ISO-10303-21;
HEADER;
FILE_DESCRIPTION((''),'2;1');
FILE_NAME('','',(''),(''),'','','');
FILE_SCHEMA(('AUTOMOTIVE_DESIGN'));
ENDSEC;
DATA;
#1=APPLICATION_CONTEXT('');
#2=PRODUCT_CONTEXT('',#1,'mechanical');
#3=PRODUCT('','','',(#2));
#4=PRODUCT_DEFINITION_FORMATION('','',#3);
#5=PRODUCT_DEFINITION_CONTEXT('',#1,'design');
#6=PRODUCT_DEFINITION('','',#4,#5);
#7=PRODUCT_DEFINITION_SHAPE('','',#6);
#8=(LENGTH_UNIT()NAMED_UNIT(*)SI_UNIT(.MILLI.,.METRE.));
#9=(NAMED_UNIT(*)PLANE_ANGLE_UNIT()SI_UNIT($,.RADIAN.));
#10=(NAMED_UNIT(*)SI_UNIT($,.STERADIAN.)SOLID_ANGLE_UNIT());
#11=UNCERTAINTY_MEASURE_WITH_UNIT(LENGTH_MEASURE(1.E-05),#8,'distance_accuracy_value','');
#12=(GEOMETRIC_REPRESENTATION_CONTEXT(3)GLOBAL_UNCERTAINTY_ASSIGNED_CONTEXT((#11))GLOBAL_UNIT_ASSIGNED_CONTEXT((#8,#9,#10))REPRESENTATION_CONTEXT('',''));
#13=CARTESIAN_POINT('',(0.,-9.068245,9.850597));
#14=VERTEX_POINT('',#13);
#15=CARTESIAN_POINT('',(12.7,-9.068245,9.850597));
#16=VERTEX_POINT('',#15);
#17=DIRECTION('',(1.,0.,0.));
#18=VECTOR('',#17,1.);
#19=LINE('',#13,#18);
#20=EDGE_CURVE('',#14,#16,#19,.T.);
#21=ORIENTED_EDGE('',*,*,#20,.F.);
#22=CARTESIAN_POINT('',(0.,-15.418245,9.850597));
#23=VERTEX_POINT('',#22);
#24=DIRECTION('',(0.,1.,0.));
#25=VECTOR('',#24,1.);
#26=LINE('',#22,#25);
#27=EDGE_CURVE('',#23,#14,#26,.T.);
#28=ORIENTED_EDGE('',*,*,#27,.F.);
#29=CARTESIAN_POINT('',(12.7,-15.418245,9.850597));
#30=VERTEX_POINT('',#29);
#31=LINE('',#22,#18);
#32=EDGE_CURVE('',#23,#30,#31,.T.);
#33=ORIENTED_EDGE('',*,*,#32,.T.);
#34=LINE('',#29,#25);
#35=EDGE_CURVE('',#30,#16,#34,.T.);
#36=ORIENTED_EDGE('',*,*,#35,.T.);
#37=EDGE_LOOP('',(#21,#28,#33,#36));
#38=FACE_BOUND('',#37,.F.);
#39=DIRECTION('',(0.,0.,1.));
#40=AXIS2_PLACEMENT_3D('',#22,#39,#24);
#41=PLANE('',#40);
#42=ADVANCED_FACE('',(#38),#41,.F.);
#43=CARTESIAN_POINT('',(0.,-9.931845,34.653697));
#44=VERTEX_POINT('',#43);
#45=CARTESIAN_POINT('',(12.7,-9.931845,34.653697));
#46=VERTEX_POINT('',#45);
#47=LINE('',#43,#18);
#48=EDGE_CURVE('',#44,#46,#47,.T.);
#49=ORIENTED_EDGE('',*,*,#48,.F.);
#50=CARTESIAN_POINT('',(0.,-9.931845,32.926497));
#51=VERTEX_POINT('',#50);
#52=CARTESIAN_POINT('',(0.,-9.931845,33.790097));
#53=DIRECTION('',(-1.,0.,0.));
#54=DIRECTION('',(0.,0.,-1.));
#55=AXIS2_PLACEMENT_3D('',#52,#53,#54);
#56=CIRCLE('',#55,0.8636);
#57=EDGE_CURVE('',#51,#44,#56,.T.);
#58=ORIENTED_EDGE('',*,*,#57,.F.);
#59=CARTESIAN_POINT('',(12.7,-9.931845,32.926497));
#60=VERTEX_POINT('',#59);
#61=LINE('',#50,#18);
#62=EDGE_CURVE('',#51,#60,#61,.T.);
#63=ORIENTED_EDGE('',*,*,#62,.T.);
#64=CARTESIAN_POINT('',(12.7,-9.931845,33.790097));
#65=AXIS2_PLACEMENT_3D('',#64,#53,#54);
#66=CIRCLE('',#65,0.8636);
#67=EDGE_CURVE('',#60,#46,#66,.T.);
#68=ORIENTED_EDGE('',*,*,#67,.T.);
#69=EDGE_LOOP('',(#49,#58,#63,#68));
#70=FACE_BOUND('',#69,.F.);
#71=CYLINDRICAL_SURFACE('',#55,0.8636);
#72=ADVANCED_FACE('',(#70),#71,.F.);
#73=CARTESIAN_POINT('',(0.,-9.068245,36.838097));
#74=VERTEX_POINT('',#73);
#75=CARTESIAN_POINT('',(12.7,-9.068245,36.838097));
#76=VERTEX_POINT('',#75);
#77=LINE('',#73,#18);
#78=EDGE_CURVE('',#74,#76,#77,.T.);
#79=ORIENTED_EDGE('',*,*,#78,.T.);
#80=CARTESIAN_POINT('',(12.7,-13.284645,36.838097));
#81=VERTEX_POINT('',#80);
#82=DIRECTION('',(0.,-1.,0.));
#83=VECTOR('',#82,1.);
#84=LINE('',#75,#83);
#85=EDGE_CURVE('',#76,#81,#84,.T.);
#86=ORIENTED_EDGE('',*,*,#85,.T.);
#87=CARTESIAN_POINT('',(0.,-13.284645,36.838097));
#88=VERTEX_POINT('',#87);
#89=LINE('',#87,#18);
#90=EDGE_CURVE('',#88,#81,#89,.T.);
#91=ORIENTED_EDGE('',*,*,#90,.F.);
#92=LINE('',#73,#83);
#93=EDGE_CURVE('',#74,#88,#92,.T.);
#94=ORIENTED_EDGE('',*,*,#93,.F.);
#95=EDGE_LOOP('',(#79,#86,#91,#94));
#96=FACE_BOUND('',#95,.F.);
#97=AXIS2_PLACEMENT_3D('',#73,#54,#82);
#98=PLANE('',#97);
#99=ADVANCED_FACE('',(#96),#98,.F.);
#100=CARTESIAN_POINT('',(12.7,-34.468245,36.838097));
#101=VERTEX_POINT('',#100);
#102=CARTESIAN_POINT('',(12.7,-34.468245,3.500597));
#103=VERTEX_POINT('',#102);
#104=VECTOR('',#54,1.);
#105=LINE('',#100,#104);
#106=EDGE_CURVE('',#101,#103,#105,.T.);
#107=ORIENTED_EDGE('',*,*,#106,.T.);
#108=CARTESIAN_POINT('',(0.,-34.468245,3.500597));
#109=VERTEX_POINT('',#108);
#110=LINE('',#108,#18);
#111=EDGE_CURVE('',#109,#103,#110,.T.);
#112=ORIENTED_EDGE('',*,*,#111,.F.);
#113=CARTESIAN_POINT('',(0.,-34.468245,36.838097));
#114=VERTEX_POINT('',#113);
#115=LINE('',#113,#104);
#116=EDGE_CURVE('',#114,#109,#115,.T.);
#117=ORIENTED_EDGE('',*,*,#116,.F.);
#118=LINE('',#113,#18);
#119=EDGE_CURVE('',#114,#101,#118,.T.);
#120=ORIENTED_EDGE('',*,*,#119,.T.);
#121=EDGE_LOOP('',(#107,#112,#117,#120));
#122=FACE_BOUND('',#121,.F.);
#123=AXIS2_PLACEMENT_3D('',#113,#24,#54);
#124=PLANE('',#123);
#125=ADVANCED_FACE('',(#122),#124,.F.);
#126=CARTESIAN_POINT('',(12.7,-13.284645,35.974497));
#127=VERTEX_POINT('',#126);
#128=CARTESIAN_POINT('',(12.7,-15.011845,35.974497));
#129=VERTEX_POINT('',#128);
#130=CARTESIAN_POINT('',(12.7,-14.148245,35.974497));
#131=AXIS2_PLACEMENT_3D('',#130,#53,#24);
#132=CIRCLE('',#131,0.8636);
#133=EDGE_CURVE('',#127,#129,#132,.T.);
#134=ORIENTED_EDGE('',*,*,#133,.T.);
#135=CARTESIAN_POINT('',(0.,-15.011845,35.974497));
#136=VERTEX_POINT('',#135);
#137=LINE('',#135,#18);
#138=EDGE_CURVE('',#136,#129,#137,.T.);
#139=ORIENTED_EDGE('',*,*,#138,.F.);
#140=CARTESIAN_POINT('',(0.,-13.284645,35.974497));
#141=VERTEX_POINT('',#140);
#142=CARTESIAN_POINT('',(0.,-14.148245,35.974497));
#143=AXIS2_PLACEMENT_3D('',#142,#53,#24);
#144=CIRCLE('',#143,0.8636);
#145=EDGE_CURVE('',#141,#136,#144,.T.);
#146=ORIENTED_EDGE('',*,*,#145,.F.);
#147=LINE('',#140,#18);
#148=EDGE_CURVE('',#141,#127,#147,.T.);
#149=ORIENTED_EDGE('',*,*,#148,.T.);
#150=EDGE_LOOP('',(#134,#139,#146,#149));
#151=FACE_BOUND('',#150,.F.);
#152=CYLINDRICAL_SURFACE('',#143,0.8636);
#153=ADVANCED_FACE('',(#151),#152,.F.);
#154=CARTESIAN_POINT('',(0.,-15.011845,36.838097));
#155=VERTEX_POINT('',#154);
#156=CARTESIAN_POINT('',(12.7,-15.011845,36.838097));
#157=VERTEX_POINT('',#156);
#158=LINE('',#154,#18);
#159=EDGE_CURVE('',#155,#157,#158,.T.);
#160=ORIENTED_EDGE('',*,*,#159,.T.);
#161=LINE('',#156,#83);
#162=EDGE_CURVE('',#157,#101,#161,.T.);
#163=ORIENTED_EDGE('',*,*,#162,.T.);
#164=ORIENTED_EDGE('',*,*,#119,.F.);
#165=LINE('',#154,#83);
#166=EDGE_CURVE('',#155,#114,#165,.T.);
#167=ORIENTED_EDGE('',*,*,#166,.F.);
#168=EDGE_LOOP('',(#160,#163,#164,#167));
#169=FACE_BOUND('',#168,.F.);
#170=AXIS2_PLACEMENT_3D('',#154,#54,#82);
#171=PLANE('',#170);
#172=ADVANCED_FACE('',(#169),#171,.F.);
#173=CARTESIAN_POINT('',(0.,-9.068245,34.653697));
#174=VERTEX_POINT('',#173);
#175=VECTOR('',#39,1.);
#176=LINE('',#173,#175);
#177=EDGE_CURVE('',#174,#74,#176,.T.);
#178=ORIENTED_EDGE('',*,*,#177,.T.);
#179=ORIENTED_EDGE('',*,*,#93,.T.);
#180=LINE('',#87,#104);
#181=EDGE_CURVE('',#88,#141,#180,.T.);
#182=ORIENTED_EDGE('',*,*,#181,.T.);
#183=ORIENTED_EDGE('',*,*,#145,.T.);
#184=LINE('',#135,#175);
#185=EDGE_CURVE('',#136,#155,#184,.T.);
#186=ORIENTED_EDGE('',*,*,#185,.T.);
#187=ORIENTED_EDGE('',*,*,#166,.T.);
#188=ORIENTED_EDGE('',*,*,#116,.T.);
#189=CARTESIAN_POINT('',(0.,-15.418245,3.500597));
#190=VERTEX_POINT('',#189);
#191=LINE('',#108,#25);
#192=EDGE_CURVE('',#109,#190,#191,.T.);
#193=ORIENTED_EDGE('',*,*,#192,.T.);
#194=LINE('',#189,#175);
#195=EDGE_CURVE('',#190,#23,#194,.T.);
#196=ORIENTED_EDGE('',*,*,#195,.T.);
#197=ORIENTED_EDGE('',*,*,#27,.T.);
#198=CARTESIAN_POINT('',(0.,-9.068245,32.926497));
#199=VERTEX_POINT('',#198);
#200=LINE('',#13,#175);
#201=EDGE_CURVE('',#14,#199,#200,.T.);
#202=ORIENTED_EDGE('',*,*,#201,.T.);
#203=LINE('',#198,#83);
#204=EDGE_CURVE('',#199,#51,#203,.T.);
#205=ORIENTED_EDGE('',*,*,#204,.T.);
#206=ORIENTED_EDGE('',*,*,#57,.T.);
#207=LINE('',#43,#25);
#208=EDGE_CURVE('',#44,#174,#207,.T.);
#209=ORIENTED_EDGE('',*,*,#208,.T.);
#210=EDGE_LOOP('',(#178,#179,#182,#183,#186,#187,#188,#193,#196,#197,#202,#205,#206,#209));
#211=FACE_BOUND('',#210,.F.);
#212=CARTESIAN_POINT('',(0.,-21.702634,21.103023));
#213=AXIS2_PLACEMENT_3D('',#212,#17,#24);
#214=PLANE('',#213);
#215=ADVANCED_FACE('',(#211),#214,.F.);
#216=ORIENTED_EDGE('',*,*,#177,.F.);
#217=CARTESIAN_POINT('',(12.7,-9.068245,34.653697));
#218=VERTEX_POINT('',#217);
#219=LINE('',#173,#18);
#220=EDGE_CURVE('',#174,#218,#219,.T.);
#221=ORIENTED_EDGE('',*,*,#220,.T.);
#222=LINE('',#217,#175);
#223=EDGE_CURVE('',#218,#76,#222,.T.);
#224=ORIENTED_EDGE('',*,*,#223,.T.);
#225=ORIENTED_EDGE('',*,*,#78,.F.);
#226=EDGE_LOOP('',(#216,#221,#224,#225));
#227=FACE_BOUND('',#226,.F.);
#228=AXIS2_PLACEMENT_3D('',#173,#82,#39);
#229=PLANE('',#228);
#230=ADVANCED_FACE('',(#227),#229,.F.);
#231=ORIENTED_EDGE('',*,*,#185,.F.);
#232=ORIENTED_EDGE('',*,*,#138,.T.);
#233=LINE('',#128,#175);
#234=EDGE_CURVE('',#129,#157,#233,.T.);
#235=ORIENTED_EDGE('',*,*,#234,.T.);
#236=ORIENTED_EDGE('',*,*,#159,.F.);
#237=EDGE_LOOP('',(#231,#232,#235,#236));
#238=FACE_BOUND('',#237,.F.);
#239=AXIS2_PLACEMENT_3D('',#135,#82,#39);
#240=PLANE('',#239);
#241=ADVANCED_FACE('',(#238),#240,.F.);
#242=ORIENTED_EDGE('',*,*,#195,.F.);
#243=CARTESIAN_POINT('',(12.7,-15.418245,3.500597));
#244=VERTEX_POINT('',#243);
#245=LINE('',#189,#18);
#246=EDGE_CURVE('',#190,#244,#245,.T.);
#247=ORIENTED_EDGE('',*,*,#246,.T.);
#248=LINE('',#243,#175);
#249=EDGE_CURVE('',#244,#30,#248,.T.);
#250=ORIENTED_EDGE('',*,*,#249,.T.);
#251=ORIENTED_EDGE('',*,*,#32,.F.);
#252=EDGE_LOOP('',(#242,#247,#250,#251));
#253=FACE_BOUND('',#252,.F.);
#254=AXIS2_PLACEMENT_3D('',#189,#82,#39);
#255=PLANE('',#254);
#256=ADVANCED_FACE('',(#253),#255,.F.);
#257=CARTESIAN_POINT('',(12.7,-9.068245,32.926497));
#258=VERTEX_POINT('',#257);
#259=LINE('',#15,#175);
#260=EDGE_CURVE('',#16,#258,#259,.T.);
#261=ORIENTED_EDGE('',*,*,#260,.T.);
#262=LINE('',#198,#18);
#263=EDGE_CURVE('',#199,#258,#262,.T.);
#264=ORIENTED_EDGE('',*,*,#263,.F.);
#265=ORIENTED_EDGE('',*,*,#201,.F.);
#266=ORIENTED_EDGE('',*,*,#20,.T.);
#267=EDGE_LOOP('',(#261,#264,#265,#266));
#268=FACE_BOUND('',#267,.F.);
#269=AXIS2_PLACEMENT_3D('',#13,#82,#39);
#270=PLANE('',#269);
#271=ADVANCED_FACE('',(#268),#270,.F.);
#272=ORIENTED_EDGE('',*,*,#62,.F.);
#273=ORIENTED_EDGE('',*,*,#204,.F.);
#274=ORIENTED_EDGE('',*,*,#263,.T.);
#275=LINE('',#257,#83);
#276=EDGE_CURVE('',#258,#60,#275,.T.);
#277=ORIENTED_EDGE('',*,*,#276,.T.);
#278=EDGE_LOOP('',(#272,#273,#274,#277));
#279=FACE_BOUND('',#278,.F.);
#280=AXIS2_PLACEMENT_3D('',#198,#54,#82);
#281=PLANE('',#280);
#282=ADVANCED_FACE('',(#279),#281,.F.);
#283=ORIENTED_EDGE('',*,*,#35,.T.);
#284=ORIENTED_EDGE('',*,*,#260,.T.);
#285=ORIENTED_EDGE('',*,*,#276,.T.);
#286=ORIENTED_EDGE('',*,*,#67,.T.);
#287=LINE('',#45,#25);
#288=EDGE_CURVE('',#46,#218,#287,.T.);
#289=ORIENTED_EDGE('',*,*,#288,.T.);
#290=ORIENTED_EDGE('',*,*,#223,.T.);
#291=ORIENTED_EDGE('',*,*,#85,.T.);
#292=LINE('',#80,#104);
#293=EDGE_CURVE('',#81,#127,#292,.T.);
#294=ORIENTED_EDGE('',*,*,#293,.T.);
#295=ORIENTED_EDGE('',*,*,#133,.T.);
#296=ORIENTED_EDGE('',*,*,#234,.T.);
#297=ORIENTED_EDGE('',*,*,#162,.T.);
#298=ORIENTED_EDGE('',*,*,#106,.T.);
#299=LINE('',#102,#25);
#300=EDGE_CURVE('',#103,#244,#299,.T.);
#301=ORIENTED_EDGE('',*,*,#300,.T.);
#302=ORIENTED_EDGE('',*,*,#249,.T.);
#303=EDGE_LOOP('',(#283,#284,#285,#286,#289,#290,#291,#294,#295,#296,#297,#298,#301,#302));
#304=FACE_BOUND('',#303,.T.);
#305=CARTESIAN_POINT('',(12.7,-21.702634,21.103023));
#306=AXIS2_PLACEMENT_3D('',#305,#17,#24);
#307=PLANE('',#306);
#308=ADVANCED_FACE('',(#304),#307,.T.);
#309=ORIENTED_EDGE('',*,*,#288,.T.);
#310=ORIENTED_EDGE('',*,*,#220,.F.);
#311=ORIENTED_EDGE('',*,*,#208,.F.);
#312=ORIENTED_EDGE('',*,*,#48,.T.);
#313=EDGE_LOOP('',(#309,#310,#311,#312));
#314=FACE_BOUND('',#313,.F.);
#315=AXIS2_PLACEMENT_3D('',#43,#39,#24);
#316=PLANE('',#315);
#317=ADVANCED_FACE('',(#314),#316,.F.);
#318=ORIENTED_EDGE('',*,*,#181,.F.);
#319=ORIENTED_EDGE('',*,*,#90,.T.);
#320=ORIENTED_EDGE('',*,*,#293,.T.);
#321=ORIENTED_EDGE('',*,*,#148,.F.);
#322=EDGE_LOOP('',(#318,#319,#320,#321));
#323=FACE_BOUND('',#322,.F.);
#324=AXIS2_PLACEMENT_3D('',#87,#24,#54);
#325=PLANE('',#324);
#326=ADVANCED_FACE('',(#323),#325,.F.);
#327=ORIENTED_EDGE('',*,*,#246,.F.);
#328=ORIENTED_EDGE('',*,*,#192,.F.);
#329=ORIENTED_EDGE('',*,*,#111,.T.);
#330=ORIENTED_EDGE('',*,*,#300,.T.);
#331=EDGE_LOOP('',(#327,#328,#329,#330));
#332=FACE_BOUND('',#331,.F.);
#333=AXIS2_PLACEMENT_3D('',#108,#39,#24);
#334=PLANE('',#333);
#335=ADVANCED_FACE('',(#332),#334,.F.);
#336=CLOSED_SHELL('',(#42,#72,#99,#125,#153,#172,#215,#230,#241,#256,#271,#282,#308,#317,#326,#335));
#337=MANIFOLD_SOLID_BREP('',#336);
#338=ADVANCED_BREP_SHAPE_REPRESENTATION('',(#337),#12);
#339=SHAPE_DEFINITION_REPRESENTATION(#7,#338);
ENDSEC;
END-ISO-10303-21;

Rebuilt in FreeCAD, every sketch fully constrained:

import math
import FreeCAD as App
import Part
import Sketcher

V = App.Vector
Q = App.Units.Quantity

doc = App.newDocument("Part")
body = doc.addObject("PartDesign::Body", "Body")

# Sketch on YZ plane
sketch1 = body.newObject("Sketcher::SketchObject", "Sketch")
sketch1.AttachmentSupport = (doc.getObject("YZ_Plane"), [""])
sketch1.MapMode = "FlatFace"
sketch1.addGeometry([
    Part.LineSegment(V(-15, 36.8, 0), V(-34.5, 36.8, 0)),  # 0
    Part.LineSegment(V(-34.5, 36.8, 0), V(-34.5, 3.5, 0)),  # 1
    Part.LineSegment(V(-34.5, 3.5, 0), V(-15.4, 3.5, 0)),  # 2
    Part.LineSegment(V(-15.4, 3.5, 0), V(-15.4, 9.9, 0)),  # 3
    Part.LineSegment(V(-15.4, 9.9, 0), V(-9.1, 9.9, 0)),  # 4
    Part.LineSegment(V(-9.1, 9.9, 0), V(-9.1, 32.9, 0)),  # 5
    Part.LineSegment(V(-9.1, 32.9, 0), V(-9.9, 32.9, 0)),  # 6
    Part.ArcOfCircle(Part.Circle(V(-9.9, 33.8, 0), V(0, 0, 1), 0.9), math.radians(90), math.radians(270)),  # 7
    Part.LineSegment(V(-9.9, 34.7, 0), V(-9.1, 34.7, 0)),  # 8
    Part.LineSegment(V(-9.1, 34.7, 0), V(-9.1, 36.8, 0)),  # 9
    Part.LineSegment(V(-9.1, 36.8, 0), V(-13.3, 36.8, 0)),  # 10
    Part.LineSegment(V(-13.3, 36.8, 0), V(-13.3, 36, 0)),  # 11
    Part.ArcOfCircle(Part.Circle(V(-14.1, 36, 0), V(0, 0, 1), 0.9), math.radians(180), math.radians(360)),  # 12
    Part.LineSegment(V(-15, 36, 0), V(-15, 36.8, 0)),  # 13
], False)
sketch1.addConstraint([
    Sketcher.Constraint("Coincident", 0, 2, 1, 1),
    Sketcher.Constraint("Coincident", 1, 2, 2, 1),
    Sketcher.Constraint("Coincident", 2, 2, 3, 1),
    Sketcher.Constraint("Coincident", 3, 2, 4, 1),
    Sketcher.Constraint("Coincident", 4, 2, 5, 1),
    Sketcher.Constraint("Coincident", 5, 2, 6, 1),
    Sketcher.Constraint("Tangent", 6, 2, 7, 2),
    Sketcher.Constraint("Tangent", 7, 1, 8, 1),
    Sketcher.Constraint("Coincident", 8, 2, 9, 1),
    Sketcher.Constraint("Coincident", 9, 2, 10, 1),
    Sketcher.Constraint("Coincident", 10, 2, 11, 1),
    Sketcher.Constraint("Tangent", 11, 2, 12, 2),
    Sketcher.Constraint("Tangent", 12, 1, 13, 1),
    Sketcher.Constraint("Coincident", 13, 2, 0, 1),
    Sketcher.Constraint("Horizontal", 0),
    Sketcher.Constraint("Vertical", 1),
    Sketcher.Constraint("Horizontal", 2),
    Sketcher.Constraint("Vertical", 3),
    Sketcher.Constraint("Horizontal", 4),
    Sketcher.Constraint("Vertical", 5),
    Sketcher.Constraint("Horizontal", 6),
    Sketcher.Constraint("Horizontal", 8),
    Sketcher.Constraint("Vertical", 9),
    Sketcher.Constraint("Horizontal", 10),
    Sketcher.Constraint("Vertical", 11),
    Sketcher.Constraint("Vertical", 13),
    Sketcher.Constraint("Equal", 7, 12),
    Sketcher.Constraint("Horizontal", 0, 2, 9, 2),
    Sketcher.Constraint("Vertical", 5, 2, 8, 2),
    Sketcher.Constraint("Equal", 4, 3),
    Sketcher.Constraint("Equal", 8, 11),
    Sketcher.Constraint("Radius", 7, Q("0.034 in")),
    Sketcher.Constraint("DistanceX", 1, 2, 4, 2, Q("1 in")),
    Sketcher.Constraint("DistanceX", 2, 1, 2, 2, Q("0.75 in")),
    Sketcher.Constraint("DistanceX", 0, 2, 12, 3, Q("0.8 in")),
    Sketcher.Constraint("DistanceX", 12, 1, 7, 1, Q("0.2 in")),
    Sketcher.Constraint("DistanceY", 1, 2, 1, 1, Q("1.3125 in")),
    Sketcher.Constraint("DistanceY", 9, 1, 9, 2, Q("0.086 in")),
    Sketcher.Constraint("DistanceX", 7, 3, -1, 1, 9.931845),
    Sketcher.Constraint("DistanceY", -1, 1, 7, 3, 33.790097),
])
pad1 = body.newObject("PartDesign::Pad", "Pad")
pad1.Profile = sketch1
pad1.Length = Q("0.5 in")

doc.recompute()
